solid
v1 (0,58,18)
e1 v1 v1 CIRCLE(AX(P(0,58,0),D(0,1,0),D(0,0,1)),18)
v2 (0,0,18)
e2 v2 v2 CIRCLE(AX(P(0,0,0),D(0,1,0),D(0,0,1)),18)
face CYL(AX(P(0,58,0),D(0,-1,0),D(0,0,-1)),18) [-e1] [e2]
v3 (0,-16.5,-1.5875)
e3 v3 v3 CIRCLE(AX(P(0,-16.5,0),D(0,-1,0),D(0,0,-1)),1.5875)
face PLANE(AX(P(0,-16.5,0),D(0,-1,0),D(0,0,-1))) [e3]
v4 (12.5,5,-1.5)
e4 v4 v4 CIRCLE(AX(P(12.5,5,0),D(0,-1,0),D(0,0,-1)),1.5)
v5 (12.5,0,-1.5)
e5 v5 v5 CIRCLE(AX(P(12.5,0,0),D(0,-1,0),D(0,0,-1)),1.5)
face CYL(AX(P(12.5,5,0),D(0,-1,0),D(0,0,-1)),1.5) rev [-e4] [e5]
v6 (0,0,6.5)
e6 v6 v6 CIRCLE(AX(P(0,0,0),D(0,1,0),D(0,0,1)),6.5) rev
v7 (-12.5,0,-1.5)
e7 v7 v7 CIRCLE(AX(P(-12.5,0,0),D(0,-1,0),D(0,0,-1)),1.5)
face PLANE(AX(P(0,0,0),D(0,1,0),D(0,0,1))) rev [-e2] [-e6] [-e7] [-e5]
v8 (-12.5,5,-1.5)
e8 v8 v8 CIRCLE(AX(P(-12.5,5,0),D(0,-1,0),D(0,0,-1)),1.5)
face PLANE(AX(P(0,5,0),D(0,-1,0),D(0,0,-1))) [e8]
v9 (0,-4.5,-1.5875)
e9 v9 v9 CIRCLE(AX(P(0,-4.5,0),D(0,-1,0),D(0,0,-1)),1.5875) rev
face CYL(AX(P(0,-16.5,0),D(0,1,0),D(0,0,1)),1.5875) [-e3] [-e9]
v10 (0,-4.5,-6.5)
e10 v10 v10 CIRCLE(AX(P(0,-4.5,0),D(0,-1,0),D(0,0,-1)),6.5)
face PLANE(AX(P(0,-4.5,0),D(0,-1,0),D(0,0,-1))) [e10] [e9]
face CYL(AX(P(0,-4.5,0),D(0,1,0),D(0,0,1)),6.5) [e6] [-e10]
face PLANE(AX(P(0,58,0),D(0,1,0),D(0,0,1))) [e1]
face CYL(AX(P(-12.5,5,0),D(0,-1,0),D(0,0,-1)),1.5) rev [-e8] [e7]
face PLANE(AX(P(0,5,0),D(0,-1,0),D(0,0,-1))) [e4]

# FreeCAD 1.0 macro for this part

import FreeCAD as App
import Part
import Sketcher

doc = App.newDocument("Part")
body = doc.addObject("PartDesign::Body", "Body")

# Sketch on XZ plane
sketch1 = body.newObject("Sketcher::SketchObject", "Sketch")
sketch1.AttachmentSupport = (doc.getObject("XZ_Plane"), [""])
sketch1.MapMode = "FlatFace"
sketch1.addGeometry(Part.Circle(App.Vector(0, 0, 0), App.Vector(0, 0, 1), 18), False)
sketch1.addConstraint(Sketcher.Constraint("Coincident", 0, 3, -1, 1))
sketch1.addConstraint(Sketcher.Constraint("Diameter", 0, 36.0))
pad1 = body.newObject("PartDesign::Pad", "Pad")
pad1.Profile = sketch1
pad1.Length = 58
pad1.Reversed = True

# Sketch on XZ plane
sketch2 = body.newObject("Sketcher::SketchObject", "Sketch001")
sketch2.AttachmentSupport = (doc.getObject("XZ_Plane"), [""])
sketch2.MapMode = "FlatFace"
sketch2.addGeometry(Part.Circle(App.Vector(0, 0, 0), App.Vector(0, 0, 1), 1.5875), False)
sketch2.addConstraint(Sketcher.Constraint("Coincident", 0, 3, -1, 1))
sketch2.addConstraint(Sketcher.Constraint("Diameter", 0, 3.175))
pad2 = body.newObject("PartDesign::Pad", "Pad001")
pad2.Profile = sketch2
pad2.Length = 16.5

# Sketch on XZ plane
sketch3 = body.newObject("Sketcher::SketchObject", "Sketch002")
sketch3.AttachmentSupport = (doc.getObject("XZ_Plane"), [""])
sketch3.MapMode = "FlatFace"
sketch3.addGeometry(Part.Circle(App.Vector(12.5, 0, 0), App.Vector(0, 0, 1), 1.5), False)
sketch3.addGeometry(Part.Circle(App.Vector(-12.5, 0, 0), App.Vector(0, 0, 1), 1.5), False)
sketch3.addConstraint(Sketcher.Constraint("Equal", 0, 1))
sketch3.addConstraint(Sketcher.Constraint("Symmetric", 0, 3, 1, 3, -1, 1))
sketch3.addConstraint(Sketcher.Constraint("PointOnObject", 0, 3, -1))
sketch3.addConstraint(Sketcher.Constraint("Diameter", 0, 3.0))
sketch3.addConstraint(Sketcher.Constraint("DistanceX", 1, 3, 0, 3, 25.0))
pocket1 = body.newObject("PartDesign::Pocket", "Pocket")
pocket1.Profile = sketch3
pocket1.Length = 5

# Sketch on XZ plane
sketch4 = body.newObject("Sketcher::SketchObject", "Sketch003")
sketch4.AttachmentSupport = (doc.getObject("XZ_Plane"), [""])
sketch4.MapMode = "FlatFace"
sketch4.addGeometry(Part.Circle(App.Vector(0, 0, 0), App.Vector(0, 0, 1), 6.5), False)
sketch4.addGeometry(Part.Circle(App.Vector(0, 0, 0), App.Vector(0, 0, 1), 1.5875), False)
sketch4.addConstraint(Sketcher.Constraint("Coincident", 0, 3, -1, 1))
sketch4.addConstraint(Sketcher.Constraint("Coincident", 1, 3, -1, 1))
sketch4.addConstraint(Sketcher.Constraint("Diameter", 0, 13.0))
sketch4.addConstraint(Sketcher.Constraint("Diameter", 1, 3.175))
pad3 = body.newObject("PartDesign::Pad", "Pad002")
pad3.Profile = sketch4
pad3.Length = 4.5

doc.recompute()
